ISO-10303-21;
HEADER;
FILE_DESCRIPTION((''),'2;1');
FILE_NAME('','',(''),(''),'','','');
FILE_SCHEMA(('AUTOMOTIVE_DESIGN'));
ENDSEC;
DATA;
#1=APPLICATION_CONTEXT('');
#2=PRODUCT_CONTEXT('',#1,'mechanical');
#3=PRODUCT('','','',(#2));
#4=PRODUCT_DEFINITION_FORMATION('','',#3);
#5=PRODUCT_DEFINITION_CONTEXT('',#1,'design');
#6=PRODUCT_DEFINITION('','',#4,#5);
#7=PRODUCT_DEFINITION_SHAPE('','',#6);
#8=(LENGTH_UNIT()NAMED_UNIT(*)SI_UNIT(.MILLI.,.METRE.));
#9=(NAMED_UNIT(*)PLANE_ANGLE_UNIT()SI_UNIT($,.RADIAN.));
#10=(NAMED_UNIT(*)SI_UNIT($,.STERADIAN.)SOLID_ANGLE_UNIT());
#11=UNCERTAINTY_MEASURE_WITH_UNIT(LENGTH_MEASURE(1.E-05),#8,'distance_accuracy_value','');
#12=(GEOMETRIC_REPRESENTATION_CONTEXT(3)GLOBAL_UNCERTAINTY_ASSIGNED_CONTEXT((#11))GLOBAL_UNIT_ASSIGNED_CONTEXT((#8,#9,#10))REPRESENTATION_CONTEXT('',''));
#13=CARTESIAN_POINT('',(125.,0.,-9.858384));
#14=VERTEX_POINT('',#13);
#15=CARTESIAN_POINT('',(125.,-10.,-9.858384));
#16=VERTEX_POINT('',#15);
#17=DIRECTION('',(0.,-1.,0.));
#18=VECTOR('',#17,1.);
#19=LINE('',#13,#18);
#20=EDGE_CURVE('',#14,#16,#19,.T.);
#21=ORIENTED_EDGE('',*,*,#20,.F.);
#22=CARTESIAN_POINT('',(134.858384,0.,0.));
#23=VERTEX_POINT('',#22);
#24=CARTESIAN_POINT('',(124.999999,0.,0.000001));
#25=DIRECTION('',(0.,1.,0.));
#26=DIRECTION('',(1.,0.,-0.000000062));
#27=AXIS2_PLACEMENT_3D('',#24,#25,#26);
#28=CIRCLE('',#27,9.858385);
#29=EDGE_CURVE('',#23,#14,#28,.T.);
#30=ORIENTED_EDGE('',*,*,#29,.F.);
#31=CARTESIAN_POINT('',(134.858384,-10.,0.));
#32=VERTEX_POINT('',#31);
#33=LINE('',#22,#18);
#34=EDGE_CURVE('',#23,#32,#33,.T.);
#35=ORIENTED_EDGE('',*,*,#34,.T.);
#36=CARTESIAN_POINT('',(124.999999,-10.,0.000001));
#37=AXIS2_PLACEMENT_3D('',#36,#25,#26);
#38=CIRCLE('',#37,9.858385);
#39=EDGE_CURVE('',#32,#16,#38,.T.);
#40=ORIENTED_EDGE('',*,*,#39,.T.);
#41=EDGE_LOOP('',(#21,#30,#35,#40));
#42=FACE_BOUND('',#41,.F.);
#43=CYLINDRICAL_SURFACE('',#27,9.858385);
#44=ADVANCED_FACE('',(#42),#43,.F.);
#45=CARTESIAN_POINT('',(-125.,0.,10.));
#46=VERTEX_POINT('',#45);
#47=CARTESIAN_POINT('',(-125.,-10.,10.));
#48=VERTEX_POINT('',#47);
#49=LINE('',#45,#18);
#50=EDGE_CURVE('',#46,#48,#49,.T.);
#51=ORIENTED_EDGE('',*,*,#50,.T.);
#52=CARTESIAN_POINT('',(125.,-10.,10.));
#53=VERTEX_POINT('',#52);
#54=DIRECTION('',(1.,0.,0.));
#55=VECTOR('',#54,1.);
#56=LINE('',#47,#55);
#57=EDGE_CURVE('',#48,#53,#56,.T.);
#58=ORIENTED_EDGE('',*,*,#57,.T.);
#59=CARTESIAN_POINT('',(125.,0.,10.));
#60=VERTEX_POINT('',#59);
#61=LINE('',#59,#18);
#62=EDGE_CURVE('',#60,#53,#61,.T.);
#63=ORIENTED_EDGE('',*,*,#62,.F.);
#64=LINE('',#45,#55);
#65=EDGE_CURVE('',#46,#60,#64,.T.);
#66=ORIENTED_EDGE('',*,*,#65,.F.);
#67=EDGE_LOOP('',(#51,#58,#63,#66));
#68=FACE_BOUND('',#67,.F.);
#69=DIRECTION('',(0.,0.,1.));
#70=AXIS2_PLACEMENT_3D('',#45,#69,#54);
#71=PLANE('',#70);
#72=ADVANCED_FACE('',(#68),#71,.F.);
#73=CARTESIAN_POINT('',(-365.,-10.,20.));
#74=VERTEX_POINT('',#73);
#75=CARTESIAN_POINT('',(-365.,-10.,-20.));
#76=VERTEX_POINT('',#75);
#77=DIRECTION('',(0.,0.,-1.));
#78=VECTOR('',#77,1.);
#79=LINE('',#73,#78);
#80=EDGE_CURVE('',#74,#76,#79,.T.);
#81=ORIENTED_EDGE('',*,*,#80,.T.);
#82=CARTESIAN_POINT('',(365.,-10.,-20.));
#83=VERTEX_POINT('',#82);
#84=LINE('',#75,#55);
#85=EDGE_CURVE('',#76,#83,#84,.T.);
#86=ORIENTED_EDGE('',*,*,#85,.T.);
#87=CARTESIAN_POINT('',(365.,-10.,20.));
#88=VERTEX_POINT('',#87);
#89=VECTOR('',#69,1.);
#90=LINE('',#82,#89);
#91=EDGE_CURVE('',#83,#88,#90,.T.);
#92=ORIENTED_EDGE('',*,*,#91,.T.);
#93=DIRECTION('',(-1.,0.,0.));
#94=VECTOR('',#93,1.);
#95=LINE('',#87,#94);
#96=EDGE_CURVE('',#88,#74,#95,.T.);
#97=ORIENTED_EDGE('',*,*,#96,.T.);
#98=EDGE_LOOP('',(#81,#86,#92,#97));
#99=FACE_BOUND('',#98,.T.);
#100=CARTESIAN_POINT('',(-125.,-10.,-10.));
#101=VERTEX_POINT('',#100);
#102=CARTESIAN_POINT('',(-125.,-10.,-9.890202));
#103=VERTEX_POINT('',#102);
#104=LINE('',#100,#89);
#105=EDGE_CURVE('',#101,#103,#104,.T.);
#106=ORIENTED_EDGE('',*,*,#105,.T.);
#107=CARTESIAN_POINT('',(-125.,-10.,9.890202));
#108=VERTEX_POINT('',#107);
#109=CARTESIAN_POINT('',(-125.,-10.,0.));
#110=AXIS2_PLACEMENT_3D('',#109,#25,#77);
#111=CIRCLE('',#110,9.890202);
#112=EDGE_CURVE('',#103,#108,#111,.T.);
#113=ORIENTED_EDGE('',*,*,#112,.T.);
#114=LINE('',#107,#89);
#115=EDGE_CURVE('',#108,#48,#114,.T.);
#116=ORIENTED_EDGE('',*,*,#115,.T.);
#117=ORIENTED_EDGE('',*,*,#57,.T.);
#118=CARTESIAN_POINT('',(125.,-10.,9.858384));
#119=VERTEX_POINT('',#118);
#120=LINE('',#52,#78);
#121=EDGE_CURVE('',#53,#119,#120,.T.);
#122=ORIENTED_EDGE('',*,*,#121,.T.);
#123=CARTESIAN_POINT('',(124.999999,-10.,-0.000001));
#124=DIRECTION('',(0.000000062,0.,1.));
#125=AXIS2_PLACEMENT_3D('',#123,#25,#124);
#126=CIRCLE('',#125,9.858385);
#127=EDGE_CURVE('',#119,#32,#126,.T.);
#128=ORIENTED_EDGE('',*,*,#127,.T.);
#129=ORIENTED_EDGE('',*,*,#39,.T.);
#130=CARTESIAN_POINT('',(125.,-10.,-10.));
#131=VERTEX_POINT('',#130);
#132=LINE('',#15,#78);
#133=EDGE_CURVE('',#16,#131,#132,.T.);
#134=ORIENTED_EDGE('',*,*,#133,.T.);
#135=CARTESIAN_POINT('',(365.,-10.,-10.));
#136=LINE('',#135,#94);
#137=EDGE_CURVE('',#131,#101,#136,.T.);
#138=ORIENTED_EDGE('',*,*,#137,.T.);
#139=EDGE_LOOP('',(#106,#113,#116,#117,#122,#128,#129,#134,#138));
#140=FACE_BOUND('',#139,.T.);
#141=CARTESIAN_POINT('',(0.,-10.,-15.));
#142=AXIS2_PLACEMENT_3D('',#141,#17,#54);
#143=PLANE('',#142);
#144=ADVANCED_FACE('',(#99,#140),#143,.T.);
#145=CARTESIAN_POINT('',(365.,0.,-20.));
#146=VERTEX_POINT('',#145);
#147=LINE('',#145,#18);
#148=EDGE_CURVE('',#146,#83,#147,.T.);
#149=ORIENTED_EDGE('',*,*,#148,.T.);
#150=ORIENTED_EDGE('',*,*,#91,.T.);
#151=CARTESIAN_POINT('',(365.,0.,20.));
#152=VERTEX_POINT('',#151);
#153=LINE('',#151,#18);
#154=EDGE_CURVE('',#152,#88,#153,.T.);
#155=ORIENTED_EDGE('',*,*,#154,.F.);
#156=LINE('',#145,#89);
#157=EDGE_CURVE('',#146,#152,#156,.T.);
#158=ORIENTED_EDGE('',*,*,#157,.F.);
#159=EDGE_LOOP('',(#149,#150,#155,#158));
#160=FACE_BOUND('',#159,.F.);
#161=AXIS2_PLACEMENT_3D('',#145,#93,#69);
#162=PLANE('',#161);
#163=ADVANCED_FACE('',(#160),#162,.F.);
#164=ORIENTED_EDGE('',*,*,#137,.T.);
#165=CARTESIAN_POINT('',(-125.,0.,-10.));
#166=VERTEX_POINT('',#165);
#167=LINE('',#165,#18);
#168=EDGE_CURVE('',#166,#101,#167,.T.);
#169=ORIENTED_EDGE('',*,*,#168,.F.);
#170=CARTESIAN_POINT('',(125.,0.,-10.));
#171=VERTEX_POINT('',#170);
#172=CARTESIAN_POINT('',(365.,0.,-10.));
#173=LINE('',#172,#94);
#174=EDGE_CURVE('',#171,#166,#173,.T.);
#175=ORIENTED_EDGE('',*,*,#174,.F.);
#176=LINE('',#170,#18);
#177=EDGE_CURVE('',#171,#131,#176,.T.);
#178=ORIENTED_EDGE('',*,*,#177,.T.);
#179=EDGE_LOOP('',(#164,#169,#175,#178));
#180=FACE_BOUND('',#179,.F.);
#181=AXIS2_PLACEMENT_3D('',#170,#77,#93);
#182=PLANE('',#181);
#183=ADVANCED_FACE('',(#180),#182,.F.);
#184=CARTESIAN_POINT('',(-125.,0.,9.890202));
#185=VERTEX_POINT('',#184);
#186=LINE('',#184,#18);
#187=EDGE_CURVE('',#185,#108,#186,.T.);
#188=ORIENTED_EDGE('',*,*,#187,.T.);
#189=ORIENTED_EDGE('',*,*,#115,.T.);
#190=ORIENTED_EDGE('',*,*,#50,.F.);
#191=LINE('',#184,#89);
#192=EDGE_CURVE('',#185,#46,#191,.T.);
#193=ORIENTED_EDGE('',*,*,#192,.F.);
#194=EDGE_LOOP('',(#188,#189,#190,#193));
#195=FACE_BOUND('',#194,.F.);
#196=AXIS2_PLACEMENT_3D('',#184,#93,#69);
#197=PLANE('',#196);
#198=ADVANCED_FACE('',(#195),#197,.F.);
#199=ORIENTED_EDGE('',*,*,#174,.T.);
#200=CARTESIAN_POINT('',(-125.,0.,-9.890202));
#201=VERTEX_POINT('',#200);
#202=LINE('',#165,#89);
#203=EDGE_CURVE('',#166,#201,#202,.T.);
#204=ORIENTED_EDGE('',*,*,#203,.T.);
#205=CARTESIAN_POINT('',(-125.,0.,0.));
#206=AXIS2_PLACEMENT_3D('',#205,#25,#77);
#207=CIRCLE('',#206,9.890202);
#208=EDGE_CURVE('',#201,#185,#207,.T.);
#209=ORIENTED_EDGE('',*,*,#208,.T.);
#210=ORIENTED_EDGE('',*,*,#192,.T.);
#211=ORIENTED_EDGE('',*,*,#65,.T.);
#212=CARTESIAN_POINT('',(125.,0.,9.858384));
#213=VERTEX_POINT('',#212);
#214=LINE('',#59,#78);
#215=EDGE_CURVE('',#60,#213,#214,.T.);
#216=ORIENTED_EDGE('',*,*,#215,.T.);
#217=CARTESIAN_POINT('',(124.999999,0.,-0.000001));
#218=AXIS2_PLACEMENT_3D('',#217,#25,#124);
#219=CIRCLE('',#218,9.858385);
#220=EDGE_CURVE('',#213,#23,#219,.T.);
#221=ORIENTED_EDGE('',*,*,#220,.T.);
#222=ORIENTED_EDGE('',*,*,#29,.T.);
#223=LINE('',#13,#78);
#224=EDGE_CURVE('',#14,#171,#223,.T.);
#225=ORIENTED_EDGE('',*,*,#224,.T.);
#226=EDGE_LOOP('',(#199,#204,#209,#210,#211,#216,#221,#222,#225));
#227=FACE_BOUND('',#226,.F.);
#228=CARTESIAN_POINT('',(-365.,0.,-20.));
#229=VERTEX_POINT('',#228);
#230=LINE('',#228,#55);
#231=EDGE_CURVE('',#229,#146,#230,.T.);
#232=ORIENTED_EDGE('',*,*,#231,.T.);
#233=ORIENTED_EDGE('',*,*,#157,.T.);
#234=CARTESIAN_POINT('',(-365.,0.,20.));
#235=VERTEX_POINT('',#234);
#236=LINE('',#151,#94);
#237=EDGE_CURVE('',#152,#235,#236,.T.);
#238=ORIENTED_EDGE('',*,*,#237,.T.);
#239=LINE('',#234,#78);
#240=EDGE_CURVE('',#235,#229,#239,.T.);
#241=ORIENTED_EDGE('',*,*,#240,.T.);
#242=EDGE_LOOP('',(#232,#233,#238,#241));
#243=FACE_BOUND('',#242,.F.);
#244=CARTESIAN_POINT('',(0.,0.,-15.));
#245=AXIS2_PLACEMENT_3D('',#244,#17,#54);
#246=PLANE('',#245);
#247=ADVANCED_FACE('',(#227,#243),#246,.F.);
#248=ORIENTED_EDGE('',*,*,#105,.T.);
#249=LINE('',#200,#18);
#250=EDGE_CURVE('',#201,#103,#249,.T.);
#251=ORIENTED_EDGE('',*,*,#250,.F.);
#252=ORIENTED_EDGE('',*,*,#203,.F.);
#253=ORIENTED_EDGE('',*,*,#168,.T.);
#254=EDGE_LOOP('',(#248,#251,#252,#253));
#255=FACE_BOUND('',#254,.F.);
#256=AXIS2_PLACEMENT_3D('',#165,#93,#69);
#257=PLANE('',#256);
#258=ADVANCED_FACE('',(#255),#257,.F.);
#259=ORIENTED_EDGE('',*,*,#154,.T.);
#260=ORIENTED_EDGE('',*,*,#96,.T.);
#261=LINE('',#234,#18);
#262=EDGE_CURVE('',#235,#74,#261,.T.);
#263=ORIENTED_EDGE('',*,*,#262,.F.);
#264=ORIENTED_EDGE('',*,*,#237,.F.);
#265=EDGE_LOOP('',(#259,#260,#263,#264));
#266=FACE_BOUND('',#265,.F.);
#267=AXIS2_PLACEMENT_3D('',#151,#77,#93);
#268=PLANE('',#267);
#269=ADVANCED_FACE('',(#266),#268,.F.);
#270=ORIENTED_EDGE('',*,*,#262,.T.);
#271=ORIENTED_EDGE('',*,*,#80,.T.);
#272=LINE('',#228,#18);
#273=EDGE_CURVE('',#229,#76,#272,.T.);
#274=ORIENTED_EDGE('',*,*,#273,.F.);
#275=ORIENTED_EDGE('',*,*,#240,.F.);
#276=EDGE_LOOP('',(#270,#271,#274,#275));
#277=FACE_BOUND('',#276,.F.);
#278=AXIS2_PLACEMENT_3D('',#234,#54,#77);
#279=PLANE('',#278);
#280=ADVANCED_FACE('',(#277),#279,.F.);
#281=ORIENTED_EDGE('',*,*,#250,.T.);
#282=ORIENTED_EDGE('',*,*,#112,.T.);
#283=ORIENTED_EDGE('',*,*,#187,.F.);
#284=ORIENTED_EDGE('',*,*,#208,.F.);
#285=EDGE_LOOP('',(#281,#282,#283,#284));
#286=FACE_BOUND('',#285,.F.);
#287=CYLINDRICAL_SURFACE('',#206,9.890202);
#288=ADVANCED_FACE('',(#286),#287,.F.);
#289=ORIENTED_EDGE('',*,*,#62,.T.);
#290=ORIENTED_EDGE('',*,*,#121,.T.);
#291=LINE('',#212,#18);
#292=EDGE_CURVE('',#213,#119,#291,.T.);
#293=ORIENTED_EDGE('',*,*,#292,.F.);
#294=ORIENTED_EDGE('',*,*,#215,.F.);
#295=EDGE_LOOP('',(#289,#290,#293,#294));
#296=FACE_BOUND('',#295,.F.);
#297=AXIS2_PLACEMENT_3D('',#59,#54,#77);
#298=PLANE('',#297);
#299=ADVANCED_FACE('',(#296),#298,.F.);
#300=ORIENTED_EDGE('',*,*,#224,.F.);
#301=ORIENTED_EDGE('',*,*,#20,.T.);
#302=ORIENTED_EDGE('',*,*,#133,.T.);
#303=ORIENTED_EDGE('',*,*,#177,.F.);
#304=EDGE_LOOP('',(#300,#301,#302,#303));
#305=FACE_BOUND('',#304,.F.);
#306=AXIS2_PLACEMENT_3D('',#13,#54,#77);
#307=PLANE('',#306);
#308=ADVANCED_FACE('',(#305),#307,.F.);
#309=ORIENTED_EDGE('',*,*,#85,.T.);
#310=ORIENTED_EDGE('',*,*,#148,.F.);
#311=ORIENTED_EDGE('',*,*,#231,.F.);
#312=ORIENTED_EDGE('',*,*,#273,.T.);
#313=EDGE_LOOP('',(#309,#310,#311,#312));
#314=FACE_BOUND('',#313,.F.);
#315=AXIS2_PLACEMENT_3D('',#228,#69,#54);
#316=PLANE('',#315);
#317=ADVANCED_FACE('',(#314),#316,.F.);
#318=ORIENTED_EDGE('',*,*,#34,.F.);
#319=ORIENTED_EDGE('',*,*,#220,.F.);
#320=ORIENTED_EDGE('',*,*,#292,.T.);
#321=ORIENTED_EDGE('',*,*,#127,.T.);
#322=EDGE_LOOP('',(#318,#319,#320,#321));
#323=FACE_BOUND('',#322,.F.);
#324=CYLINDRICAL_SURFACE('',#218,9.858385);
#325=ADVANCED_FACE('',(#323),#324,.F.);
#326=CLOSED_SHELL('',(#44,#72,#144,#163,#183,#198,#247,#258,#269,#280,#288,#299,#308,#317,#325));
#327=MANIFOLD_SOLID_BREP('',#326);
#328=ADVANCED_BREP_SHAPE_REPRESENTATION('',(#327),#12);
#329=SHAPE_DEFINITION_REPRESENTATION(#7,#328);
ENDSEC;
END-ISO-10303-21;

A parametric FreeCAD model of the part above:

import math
import FreeCAD as App
import Part
import Sketcher

doc = App.newDocument("Part")
params = doc.addObject("Spreadsheet::Sheet", "Params")
for row, (alias, value) in enumerate([
    ("sketch1_width", "730 mm"),
    ("sketch1_width2", "250 mm"),
    ("sketch1_height", "40 mm"),
    ("pad1_length", "10 mm"),
], start=1):
    params.set(f"A{row}", alias)
    params.set(f"B{row}", "=" + value)
    params.setAlias(f"B{row}", alias)

body = doc.addObject("PartDesign::Body", "Body")

# Sketch on XZ plane
sketch1 = body.newObject("Sketcher::SketchObject", "Sketch")
sketch1.AttachmentSupport = (doc.getObject("XZ_Plane"), [""])
sketch1.MapMode = "FlatFace"
sketch1.addGeometry([
    Part.LineSegment(App.Vector(-365, -20, 0), App.Vector(365, -20, 0)),  # 0
    Part.LineSegment(App.Vector(365, -20, 0), App.Vector(365, 20, 0)),  # 1
    Part.LineSegment(App.Vector(365, 20, 0), App.Vector(-365, 20, 0)),  # 2
    Part.LineSegment(App.Vector(-365, 20, 0), App.Vector(-365, -20, 0)),  # 3
    Part.LineSegment(App.Vector(125, 10, 0), App.Vector(125, 9.86, 0)),  # 4
    Part.ArcOfCircle(Part.Circle(App.Vector(125, 0, 0), App.Vector(0, 0, 1), 9.86), math.radians(0), math.radians(90)),  # 5
    Part.ArcOfCircle(Part.Circle(App.Vector(125, 0, 0), App.Vector(0, 0, 1), 9.86), math.radians(-90), math.radians(0)),  # 6
    Part.LineSegment(App.Vector(125, -9.86, 0), App.Vector(125, -10, 0)),  # 7
    Part.LineSegment(App.Vector(125, -10, 0), App.Vector(-125, -10, 0)),  # 8
    Part.LineSegment(App.Vector(-125, -10, 0), App.Vector(-125, -9.89, 0)),  # 9
    Part.ArcOfCircle(Part.Circle(App.Vector(-125, 0, 0), App.Vector(0, 0, 1), 9.89), math.radians(90), math.radians(270)),  # 10
    Part.LineSegment(App.Vector(-125, 9.89, 0), App.Vector(-125, 10, 0)),  # 11
    Part.LineSegment(App.Vector(-125, 10, 0), App.Vector(125, 10, 0)),  # 12
], False)
sketch1.addConstraint([
    Sketcher.Constraint("Coincident", 0, 2, 1, 1),
    Sketcher.Constraint("Coincident", 1, 2, 2, 1),
    Sketcher.Constraint("Coincident", 2, 2, 3, 1),
    Sketcher.Constraint("Coincident", 3, 2, 0, 1),
    Sketcher.Constraint("Coincident", 4, 2, 5, 2),
    Sketcher.Constraint("Tangent", 5, 1, 6, 2),
    Sketcher.Constraint("Coincident", 6, 1, 7, 1),
    Sketcher.Constraint("Coincident", 7, 2, 8, 1),
    Sketcher.Constraint("Coincident", 8, 2, 9, 1),
    Sketcher.Constraint("Coincident", 9, 2, 10, 2),
    Sketcher.Constraint("Coincident", 10, 1, 11, 1),
    Sketcher.Constraint("Coincident", 11, 2, 12, 1),
    Sketcher.Constraint("Coincident", 12, 2, 4, 1),
    Sketcher.Constraint("Horizontal", 0),
    Sketcher.Constraint("Vertical", 1),
    Sketcher.Constraint("Horizontal", 2),
    Sketcher.Constraint("Vertical", 3),
    Sketcher.Constraint("Vertical", 4),
    Sketcher.Constraint("Vertical", 7),
    Sketcher.Constraint("Horizontal", 8),
    Sketcher.Constraint("Vertical", 9),
    Sketcher.Constraint("Vertical", 11),
    Sketcher.Constraint("Horizontal", 12),
    Sketcher.Constraint("Equal", 5, 6),
    Sketcher.Constraint("Symmetric", 5, 3, 10, 3, -1, 1),
    Sketcher.Constraint("Symmetric", 0, 2, 2, 2, -1, 1),
    Sketcher.Constraint("Symmetric", 7, 2, 11, 2, -1, 1),
    Sketcher.Constraint("Symmetric", 4, 2, 6, 1, -1),
    Sketcher.Constraint("PointOnObject", 5, 1, -1),
    Sketcher.Constraint("Vertical", 6, 3, 4, 2),
    Sketcher.Constraint("Vertical", 10, 3, 8, 2),
    Sketcher.Constraint("DistanceX", 0, 1, 0, 2, 730.0),
    Sketcher.Constraint("DistanceX", 8, 2, 8, 1, 250.0),
    Sketcher.Constraint("DistanceY", 1, 1, 1, 2, 40.0),
    Sketcher.Constraint("DistanceY", 7, 2, -1, 1, 10.0),
    Sketcher.Constraint("Radius", 5, 9.858385),
    Sketcher.Constraint("Radius", 10, 9.890202),
])
sketch1.setExpression("Constraints[31]", "Params.sketch1_width")
sketch1.setExpression("Constraints[32]", "Params.sketch1_width2")
sketch1.setExpression("Constraints[33]", "Params.sketch1_height")
pad1 = body.newObject("PartDesign::Pad", "Pad")
pad1.Profile = sketch1
pad1.setExpression("Length", "Params.pad1_length")

doc.recompute()
